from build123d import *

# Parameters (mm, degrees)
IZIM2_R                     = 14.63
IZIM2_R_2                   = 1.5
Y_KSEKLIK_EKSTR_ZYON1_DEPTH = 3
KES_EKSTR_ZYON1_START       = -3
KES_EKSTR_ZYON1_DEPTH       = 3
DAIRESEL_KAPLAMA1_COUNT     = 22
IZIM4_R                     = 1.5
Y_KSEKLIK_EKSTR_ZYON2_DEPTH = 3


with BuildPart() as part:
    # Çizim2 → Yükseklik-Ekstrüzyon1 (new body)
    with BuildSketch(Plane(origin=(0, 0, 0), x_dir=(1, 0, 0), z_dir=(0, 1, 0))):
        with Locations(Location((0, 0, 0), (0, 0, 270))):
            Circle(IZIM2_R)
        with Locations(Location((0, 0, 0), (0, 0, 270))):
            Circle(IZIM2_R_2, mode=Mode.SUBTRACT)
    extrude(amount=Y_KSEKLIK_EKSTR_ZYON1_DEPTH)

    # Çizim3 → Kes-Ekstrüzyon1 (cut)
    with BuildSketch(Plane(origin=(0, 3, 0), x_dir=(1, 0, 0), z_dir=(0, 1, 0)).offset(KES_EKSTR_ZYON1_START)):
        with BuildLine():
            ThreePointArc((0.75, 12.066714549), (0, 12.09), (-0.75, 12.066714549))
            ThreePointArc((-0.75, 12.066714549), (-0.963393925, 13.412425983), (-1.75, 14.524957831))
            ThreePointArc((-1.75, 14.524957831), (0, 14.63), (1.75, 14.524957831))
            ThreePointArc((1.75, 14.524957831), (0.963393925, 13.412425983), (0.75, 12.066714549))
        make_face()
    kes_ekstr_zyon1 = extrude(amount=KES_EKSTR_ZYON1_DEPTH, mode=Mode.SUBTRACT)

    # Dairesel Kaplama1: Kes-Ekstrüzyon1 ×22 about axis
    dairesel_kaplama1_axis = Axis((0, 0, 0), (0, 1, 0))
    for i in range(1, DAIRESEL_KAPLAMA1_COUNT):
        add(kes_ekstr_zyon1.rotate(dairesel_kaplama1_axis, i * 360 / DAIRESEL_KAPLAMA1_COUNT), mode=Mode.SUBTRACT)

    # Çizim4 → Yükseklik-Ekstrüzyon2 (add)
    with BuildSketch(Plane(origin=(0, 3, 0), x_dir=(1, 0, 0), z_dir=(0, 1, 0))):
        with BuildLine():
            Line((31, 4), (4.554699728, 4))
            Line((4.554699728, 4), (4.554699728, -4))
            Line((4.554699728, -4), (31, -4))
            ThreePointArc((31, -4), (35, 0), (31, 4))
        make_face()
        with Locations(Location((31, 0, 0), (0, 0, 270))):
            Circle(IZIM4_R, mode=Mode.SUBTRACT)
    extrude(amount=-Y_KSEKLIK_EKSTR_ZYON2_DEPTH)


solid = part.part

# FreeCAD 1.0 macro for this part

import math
import FreeCAD as App
import Part
import Sketcher

V = App.Vector
Q = App.Units.Quantity

doc = App.newDocument("Part")
body = doc.addObject("PartDesign::Body", "Body")

sketch1 = doc.addObject("Sketcher::SketchObject", "Sketch")
body.addObject(sketch1)
sketch1.AttachmentSupport = (doc.XZ_Plane, [""])
sketch1.MapMode = "FlatFace"
sketch1.addGeometry([
    Part.Circle(V(0, 0, 0), V(0, 0, 1), 14.6),
    Part.Circle(V(0, 0, 0), V(0, 0, 1), 1.5),
], False)
sketch1.addConstraint([
    Sketcher.Constraint("Coincident", 0, 3, -1, 1),
    Sketcher.Constraint("Coincident", 1, 3, -1, 1),
    Sketcher.Constraint("Diameter", 1, Q("3 mm")),
    Sketcher.Constraint("Diameter", 0, Q("29.26 mm")),
])
pad1 = doc.addObject("PartDesign::Pad", "Pad")
body.addObject(pad1)
pad1.Profile = sketch1
pad1.Length = 3
pad1.Reversed = True

sketch2 = doc.addObject("Sketcher::SketchObject", "Sketch001")
body.addObject(sketch2)
sketch2.AttachmentSupport = (doc.XZ_Plane, [""])
sketch2.MapMode = "FlatFace"
sketch2.addGeometry([
    Part.ArcOfCircle(Part.Circle(V(0, 0, 0), V(0, 0, 1), 12.1), math.radians(-93.56), math.radians(-86.44)),
    Part.ArcOfCircle(Part.Circle(V(3.7, -12.3, 0), V(0, 0, 1), 3), math.radians(176), math.radians(228)),
    Part.ArcOfCircle(Part.Circle(V(0, 0, 0), V(0, 0, 1), 14.6), math.radians(-96.87), math.radians(-83.13)),
    Part.ArcOfCircle(Part.Circle(V(-3.7, -12.3, 0), V(0, 0, 1), 3), math.radians(-48), math.radians(4)),
], False)
sketch2.addConstraint([
    Sketcher.Constraint("Coincident", 0, 2, 1, 1),
    Sketcher.Constraint("Coincident", 1, 2, 2, 2),
    Sketcher.Constraint("Coincident", 2, 1, 3, 1),
    Sketcher.Constraint("Coincident", 3, 2, 0, 1),
    Sketcher.Constraint("Coincident", 0, 3, -1, 1),
    Sketcher.Constraint("Coincident", 2, 3, -1, 1),
    Sketcher.Constraint("Equal", 1, 3),
    Sketcher.Constraint("Symmetric", 1, 3, 3, 3, -2),
    Sketcher.Constraint("Radius", 1, Q("3 mm")),
    Sketcher.Constraint("Radius", 0, Q("12.09 mm")),
    Sketcher.Constraint("Radius", 2, Q("14.63 mm")),
    Sketcher.Constraint("DistanceX", 0, 2, 1, 2, Q("1 mm")),
    Sketcher.Constraint("DistanceX", 2, 1, 1, 2, Q("3.5 mm")),
])
pocket1 = doc.addObject("PartDesign::Pocket", "Pocket")
body.addObject(pocket1)
pocket1.Profile = sketch2
pocket1.Length = 3
doc.recompute()

polarpattern = doc.addObject("PartDesign::PolarPattern", "PolarPattern")
body.addObject(polarpattern)
polarpattern.Originals = [pocket1]
polarpattern.Axis = (doc.Y_Axis, [""])
polarpattern.Angle = 360
polarpattern.Occurrences = 22
body.Tip = polarpattern

sketch3 = doc.addObject("Sketcher::SketchObject", "Sketch002")
body.addObject(sketch3)
sketch3.AttachmentSupport = (doc.XZ_Plane, [""])
sketch3.MapMode = "FlatFace"
sketch3.AttachmentOffset = App.Placement(V(0, 0, -3), App.Rotation())
sketch3.addGeometry([
    Part.LineSegment(V(31, -4, 0), V(4.6, -4, 0)),
    Part.LineSegment(V(4.6, -4, 0), V(4.6, 4, 0)),
    Part.LineSegment(V(4.6, 4, 0), V(31, 4, 0)),
    Part.ArcOfCircle(Part.Circle(V(31, 0, 0), V(0, 0, 1), 4), math.radians(-90), math.radians(90)),
    Part.Circle(V(31, 0, 0), V(0, 0, 1), 1.5),
], False)
sketch3.addConstraint([
    Sketcher.Constraint("Coincident", 0, 2, 1, 1),
    Sketcher.Constraint("Coincident", 1, 2, 2, 1),
    Sketcher.Constraint("Tangent", 2, 2, 3, 2),
    Sketcher.Constraint("Tangent", 3, 1, 0, 1),
    Sketcher.Constraint("Horizontal", 0),
    Sketcher.Constraint("Vertical", 1),
    Sketcher.Constraint("Horizontal", 2),
    Sketcher.Constraint("Coincident", 4, 3, 3, 3),
    Sketcher.Constraint("PointOnObject", 3, 3, -1),
    Sketcher.Constraint("Diameter", 4, Q("3 mm")),
    Sketcher.Constraint("Radius", 3, Q("4 mm")),
    Sketcher.Constraint("DistanceX", -1, 1, 3, 3, Q("31 mm")),
    Sketcher.Constraint("DistanceX", 0, 2, 0, 1, Q("26.4453 mm")),
])
pad2 = doc.addObject("PartDesign::Pad", "Pad001")
body.addObject(pad2)
pad2.Profile = sketch3
pad2.Length = 3

doc.recompute()
